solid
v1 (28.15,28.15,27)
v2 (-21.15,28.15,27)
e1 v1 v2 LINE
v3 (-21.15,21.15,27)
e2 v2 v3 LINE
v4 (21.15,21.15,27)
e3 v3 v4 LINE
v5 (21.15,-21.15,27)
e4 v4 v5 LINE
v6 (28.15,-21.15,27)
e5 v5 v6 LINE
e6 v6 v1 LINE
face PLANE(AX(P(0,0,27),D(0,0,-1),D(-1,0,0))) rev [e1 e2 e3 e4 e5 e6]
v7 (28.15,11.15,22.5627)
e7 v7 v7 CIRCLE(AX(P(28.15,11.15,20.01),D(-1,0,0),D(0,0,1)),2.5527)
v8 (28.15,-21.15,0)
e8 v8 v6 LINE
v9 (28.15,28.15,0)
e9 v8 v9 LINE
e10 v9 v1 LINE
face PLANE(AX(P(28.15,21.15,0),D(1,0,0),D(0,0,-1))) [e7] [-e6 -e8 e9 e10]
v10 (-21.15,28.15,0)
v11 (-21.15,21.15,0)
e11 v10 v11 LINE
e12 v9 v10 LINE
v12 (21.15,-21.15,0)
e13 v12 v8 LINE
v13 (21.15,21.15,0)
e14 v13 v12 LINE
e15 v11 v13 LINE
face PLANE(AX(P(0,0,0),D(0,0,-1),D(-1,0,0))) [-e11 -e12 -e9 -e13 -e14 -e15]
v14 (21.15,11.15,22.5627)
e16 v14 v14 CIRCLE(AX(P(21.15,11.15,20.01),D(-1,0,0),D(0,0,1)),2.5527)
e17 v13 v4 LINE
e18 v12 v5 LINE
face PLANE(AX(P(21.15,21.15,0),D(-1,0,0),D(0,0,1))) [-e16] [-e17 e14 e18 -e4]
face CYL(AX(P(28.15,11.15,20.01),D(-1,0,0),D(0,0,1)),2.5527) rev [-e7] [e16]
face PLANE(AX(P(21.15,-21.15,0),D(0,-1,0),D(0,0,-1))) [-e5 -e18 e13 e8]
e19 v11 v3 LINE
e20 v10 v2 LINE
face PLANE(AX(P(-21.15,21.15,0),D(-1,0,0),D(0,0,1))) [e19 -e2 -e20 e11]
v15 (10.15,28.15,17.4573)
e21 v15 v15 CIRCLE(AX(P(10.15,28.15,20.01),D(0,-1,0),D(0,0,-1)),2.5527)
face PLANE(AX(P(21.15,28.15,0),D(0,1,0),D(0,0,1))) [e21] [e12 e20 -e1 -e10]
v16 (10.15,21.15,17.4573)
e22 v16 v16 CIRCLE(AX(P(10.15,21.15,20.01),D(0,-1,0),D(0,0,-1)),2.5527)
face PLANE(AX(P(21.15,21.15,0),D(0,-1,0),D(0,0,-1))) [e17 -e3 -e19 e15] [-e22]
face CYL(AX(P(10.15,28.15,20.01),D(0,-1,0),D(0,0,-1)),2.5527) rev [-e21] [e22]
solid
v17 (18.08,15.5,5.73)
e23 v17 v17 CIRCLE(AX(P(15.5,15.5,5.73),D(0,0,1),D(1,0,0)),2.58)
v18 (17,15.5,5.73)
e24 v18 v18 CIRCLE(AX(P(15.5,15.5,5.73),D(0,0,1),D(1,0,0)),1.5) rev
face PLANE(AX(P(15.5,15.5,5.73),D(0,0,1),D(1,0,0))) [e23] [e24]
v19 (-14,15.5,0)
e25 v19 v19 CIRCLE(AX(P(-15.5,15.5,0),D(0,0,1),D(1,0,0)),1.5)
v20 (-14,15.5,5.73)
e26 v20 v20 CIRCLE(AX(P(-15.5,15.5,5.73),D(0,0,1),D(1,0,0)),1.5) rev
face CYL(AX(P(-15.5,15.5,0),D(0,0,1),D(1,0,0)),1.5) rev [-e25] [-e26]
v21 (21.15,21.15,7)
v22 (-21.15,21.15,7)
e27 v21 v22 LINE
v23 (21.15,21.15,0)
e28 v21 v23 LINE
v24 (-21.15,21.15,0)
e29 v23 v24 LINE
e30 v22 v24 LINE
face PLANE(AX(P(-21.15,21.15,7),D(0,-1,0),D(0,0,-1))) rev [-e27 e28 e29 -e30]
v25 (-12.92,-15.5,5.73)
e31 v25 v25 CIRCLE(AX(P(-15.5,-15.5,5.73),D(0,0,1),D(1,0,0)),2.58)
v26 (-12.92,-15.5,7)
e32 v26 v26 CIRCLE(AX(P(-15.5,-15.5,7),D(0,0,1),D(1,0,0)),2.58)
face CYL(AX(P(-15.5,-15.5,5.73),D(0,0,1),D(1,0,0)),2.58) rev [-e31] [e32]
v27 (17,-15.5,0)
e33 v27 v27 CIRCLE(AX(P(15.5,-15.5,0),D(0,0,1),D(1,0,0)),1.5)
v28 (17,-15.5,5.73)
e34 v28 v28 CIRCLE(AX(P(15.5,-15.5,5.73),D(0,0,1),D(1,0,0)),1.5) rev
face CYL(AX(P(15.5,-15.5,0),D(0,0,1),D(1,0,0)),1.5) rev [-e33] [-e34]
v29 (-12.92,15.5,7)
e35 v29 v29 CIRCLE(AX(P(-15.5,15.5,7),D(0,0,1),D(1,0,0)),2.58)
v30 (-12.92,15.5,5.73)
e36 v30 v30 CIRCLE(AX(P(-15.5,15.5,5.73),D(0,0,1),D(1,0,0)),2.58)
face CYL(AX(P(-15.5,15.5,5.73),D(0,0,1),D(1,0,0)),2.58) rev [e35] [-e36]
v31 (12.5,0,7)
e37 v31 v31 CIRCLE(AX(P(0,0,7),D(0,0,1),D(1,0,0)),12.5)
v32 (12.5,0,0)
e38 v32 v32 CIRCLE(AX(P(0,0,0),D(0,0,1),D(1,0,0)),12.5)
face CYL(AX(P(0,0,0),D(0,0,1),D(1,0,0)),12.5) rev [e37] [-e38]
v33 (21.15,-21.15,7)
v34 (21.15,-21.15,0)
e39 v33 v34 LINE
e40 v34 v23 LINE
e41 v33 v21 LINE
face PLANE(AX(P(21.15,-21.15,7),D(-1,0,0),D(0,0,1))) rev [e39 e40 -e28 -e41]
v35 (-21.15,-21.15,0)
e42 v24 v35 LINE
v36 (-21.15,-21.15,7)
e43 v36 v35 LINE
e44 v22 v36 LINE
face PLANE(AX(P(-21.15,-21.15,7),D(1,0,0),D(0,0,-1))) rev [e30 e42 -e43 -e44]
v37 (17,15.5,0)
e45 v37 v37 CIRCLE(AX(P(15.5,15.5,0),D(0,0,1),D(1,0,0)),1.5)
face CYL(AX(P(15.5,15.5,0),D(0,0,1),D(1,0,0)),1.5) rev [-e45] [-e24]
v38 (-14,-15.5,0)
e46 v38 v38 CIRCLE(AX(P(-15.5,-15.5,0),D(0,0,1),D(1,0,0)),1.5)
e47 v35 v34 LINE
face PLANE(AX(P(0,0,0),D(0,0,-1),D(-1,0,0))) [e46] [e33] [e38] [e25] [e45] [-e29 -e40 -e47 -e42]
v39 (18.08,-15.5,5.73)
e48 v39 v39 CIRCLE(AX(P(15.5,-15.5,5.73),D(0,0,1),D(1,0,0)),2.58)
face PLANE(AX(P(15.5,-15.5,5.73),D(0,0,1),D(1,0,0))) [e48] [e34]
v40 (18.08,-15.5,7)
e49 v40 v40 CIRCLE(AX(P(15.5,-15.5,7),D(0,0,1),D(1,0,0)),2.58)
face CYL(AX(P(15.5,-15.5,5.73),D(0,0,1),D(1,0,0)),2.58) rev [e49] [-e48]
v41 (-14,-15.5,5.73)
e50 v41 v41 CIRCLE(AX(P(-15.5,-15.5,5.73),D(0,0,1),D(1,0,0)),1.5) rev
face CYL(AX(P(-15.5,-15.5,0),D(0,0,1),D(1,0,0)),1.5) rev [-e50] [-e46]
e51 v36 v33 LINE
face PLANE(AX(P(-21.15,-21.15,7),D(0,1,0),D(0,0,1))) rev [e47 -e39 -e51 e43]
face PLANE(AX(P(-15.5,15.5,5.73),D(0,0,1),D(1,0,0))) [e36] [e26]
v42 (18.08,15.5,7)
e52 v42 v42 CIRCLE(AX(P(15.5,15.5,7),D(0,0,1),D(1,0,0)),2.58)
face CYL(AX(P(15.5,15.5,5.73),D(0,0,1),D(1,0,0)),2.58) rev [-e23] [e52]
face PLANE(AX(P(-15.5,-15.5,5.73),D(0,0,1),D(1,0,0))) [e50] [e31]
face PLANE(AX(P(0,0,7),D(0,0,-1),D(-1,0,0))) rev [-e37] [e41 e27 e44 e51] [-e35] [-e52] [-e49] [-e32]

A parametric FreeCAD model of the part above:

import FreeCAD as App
import Part
import Sketcher
from FreeCAD import Vector
Q = App.Units.Quantity

doc = App.newDocument("Part")
body = doc.addObject("PartDesign::Body", "Body")

# Sketch on XY plane
sketch1 = doc.addObject("Sketcher::SketchObject", "Sketch")
body.addObject(sketch1)
sketch1.AttachmentSupport = (doc.XY_Plane, [""])
sketch1.MapMode = "FlatFace"
sketch1.addGeometry([
    Part.LineSegment(Vector(-21, 21, 0), Vector(-21, -21, 0)),
    Part.LineSegment(Vector(-21, -21, 0), Vector(21, -21, 0)),
    Part.LineSegment(Vector(21, -21, 0), Vector(21, 21, 0)),
    Part.LineSegment(Vector(21, 21, 0), Vector(-21, 21, 0)),
], False)
sketch1.addConstraint([
    Sketcher.Constraint("Coincident", 0, 2, 1, 1),
    Sketcher.Constraint("Coincident", 1, 2, 2, 1),
    Sketcher.Constraint("Coincident", 2, 2, 3, 1),
    Sketcher.Constraint("Coincident", 3, 2, 0, 1),
    Sketcher.Constraint("Vertical", 0),
    Sketcher.Constraint("Horizontal", 1),
    Sketcher.Constraint("Vertical", 2),
    Sketcher.Constraint("Horizontal", 3),
    Sketcher.Constraint("Symmetric", 0, 2, 2, 2, -1, 1),
    Sketcher.Constraint("Equal", 3, 0),
    Sketcher.Constraint("DistanceX", 1, 1, 1, 2, Q("42.3 mm")),
])
pad1 = doc.addObject("PartDesign::Pad", "Pad")
body.addObject(pad1)
pad1.Profile = sketch1
pad1.Length = 7

# Sketch on XY plane
sketch2 = doc.addObject("Sketcher::SketchObject", "Sketch001")
body.addObject(sketch2)
sketch2.AttachmentSupport = (doc.XY_Plane, [""])
sketch2.MapMode = "FlatFace"
sketch2.AttachmentOffset = App.Placement(Vector(0, 0, 7), App.Rotation())
sketch2.addGeometry([
    Part.Circle(Vector(-15.5, 15.5, 0), Vector(0, 0, 1), 1.5),  # 0
    Part.Circle(Vector(0, 0, 0), Vector(0, 0, 1), 12.5),  # 1
    Part.Circle(Vector(15.5, 15.5, 0), Vector(0, 0, 1), 1.5),  # 2
    Part.Circle(Vector(15.5, -15.5, 0), Vector(0, 0, 1), 1.5),  # 3
    Part.Circle(Vector(-15.5, -15.5, 0), Vector(0, 0, 1), 1.5),  # 4
], False)
sketch2.addConstraint([
    Sketcher.Constraint("Coincident", 1, 3, -1, 1),
    Sketcher.Constraint("Equal", 0, 2),
    Sketcher.Constraint("Equal", 2, 3),
    Sketcher.Constraint("Equal", 3, 4),
    Sketcher.Constraint("Symmetric", 0, 3, 3, 3, -1, 1),
    Sketcher.Constraint("Symmetric", 2, 3, 4, 3, -1, 1),
    Sketcher.Constraint("Symmetric", 0, 3, 2, 3, -2),
    Sketcher.Constraint("Diameter", 0, Q("3 mm")),
    Sketcher.Constraint("Diameter", 1, Q("25 mm")),
    Sketcher.Constraint("DistanceX", 0, 3, 2, 3, Q("31 mm")),
    Sketcher.Constraint("DistanceY", 3, 3, 2, 3, Q("31 mm")),
])
pocket1 = doc.addObject("PartDesign::Pocket", "Pocket")
body.addObject(pocket1)
pocket1.Profile = sketch2
pocket1.Length = 7

# Sketch on XY plane
sketch3 = doc.addObject("Sketcher::SketchObject", "Sketch002")
body.addObject(sketch3)
sketch3.AttachmentSupport = (doc.XY_Plane, [""])
sketch3.MapMode = "FlatFace"
sketch3.AttachmentOffset = App.Placement(Vector(0, 0, 7), App.Rotation())
sketch3.addGeometry([
    Part.Circle(Vector(-15.5, 15.5, 0), Vector(0, 0, 1), 2.6),
    Part.Circle(Vector(15.5, 15.5, 0), Vector(0, 0, 1), 2.6),
    Part.Circle(Vector(-15.5, -15.5, 0), Vector(0, 0, 1), 2.6),
    Part.Circle(Vector(15.5, -15.5, 0), Vector(0, 0, 1), 2.6),
], False)
sketch3.addConstraint([
    Sketcher.Constraint("Equal", 0, 1),
    Sketcher.Constraint("Equal", 1, 2),
    Sketcher.Constraint("Equal", 2, 3),
    Sketcher.Constraint("Symmetric", 1, 3, 2, 3, -1, 1),
    Sketcher.Constraint("Symmetric", 0, 3, 3, 3, -1, 1),
    Sketcher.Constraint("Symmetric", 0, 3, 1, 3, -2),
    Sketcher.Constraint("Diameter", 0, Q("5.16 mm")),
    Sketcher.Constraint("DistanceX", 0, 3, 1, 3, Q("31 mm")),
    Sketcher.Constraint("DistanceY", 2, 3, 0, 3, Q("31 mm")),
])
pocket2 = doc.addObject("PartDesign::Pocket", "Pocket001")
body.addObject(pocket2)
pocket2.Profile = sketch3
pocket2.Length = 1.27
body2 = doc.addObject("PartDesign::Body", "Body001")

# Sketch on XY plane
sketch4 = doc.addObject("Sketcher::SketchObject", "Sketch003")
body2.addObject(sketch4)
sketch4.AttachmentSupport = (doc.getObject("XY_Plane001"), [""])
sketch4.MapMode = "FlatFace"
sketch4.AttachmentOffset = App.Placement(Vector(0, 0, 7), App.Rotation())
sketch4.addGeometry([
    Part.LineSegment(Vector(21, -21, 0), Vector(28, -21, 0)),
    Part.LineSegment(Vector(28, -21, 0), Vector(28, 28, 0)),
    Part.LineSegment(Vector(28, 28, 0), Vector(21, 28, 0)),
    Part.LineSegment(Vector(21, 28, 0), Vector(21, -21, 0)),
], False)
sketch4.addConstraint([
    Sketcher.Constraint("Coincident", 0, 2, 1, 1),
    Sketcher.Constraint("Coincident", 1, 2, 2, 1),
    Sketcher.Constraint("Coincident", 2, 2, 3, 1),
    Sketcher.Constraint("Coincident", 3, 2, 0, 1),
    Sketcher.Constraint("Horizontal", 0),
    Sketcher.Constraint("Vertical", 1),
    Sketcher.Constraint("Horizontal", 2),
    Sketcher.Constraint("Vertical", 3),
    Sketcher.Constraint("DistanceX", 0, 1, 0, 2, Q("7 mm")),
    Sketcher.Constraint("DistanceY", 1, 1, 1, 2, Q("49.3 mm")),
    Sketcher.Constraint("DistanceX", -1, 1, 0, 2, Q("28.15 mm")),
    Sketcher.Constraint("DistanceY", 0, 2, -1, 1, Q("21.15 mm")),
])
pad2 = doc.addObject("PartDesign::Pad", "Pad001")
body2.addObject(pad2)
pad2.Profile = sketch4
pad2.Type = "TwoLengths"
pad2.Length = 20
pad2.Length2 = 7

# Sketch on XY plane
sketch5 = doc.addObject("Sketcher::SketchObject", "Sketch004")
body2.addObject(sketch5)
sketch5.AttachmentSupport = (doc.getObject("XY_Plane001"), [""])
sketch5.MapMode = "FlatFace"
sketch5.AttachmentOffset = App.Placement(Vector(0, 0, 7), App.Rotation())
sketch5.addGeometry([
    Part.LineSegment(Vector(-21, 28, 0), Vector(-21, 21, 0)),
    Part.LineSegment(Vector(-21, 21, 0), Vector(21, 21, 0)),
    Part.LineSegment(Vector(21, 21, 0), Vector(21, 28, 0)),
    Part.LineSegment(Vector(21, 28, 0), Vector(-21, 28, 0)),
], False)
sketch5.addConstraint([
    Sketcher.Constraint("Coincident", 0, 2, 1, 1),
    Sketcher.Constraint("Coincident", 1, 2, 2, 1),
    Sketcher.Constraint("Coincident", 2, 2, 3, 1),
    Sketcher.Constraint("Coincident", 3, 2, 0, 1),
    Sketcher.Constraint("Vertical", 0),
    Sketcher.Constraint("Horizontal", 1),
    Sketcher.Constraint("Vertical", 2),
    Sketcher.Constraint("Horizontal", 3),
    Sketcher.Constraint("DistanceY", 0, 2, 0, 1, Q("7 mm")),
    Sketcher.Constraint("DistanceX", 1, 1, 1, 2, Q("42.3 mm")),
    Sketcher.Constraint("DistanceX", 0, 2, -1, 1, Q("21.15 mm")),
    Sketcher.Constraint("DistanceY", -1, 1, 0, 2, Q("21.15 mm")),
])
pad3 = doc.addObject("PartDesign::Pad", "Pad002")
body2.addObject(pad3)
pad3.Profile = sketch5
pad3.Type = "TwoLengths"
pad3.Length = 20
pad3.Length2 = 7

# Sketch on XZ plane
sketch6 = doc.addObject("Sketcher::SketchObject", "Sketch005")
body2.addObject(sketch6)
sketch6.AttachmentSupport = (doc.getObject("XZ_Plane001"), [""])
sketch6.MapMode = "FlatFace"
sketch6.AttachmentOffset = App.Placement(Vector(0, 0, -21.15), App.Rotation())
sketch6.addGeometry(Part.Circle(Vector(10.2, 20, 0), Vector(0, 0, 1), 2.6), False)
sketch6.addConstraint([
    Sketcher.Constraint("Diameter", 0, Q("5.1054 mm")),
    Sketcher.Constraint("DistanceX", -1, 1, 0, 3, Q("10.15 mm")),
    Sketcher.Constraint("DistanceY", -1, 1, 0, 3, Q("20.01 mm")),
])
pocket3 = doc.addObject("PartDesign::Pocket", "Pocket002")
body2.addObject(pocket3)
pocket3.Profile = sketch6
pocket3.Type = "ThroughAll"

# Sketch on YZ plane
sketch7 = doc.addObject("Sketcher::SketchObject", "Sketch006")
body2.addObject(sketch7)
sketch7.AttachmentSupport = (doc.getObject("YZ_Plane001"), [""])
sketch7.MapMode = "FlatFace"
sketch7.AttachmentOffset = App.Placement(Vector(0, 0, 21.15), App.Rotation())
sketch7.addGeometry(Part.Circle(Vector(11.2, 20, 0), Vector(0, 0, 1), 2.6), False)
sketch7.addConstraint([
    Sketcher.Constraint("Diameter", 0, Q("5.1054 mm")),
    Sketcher.Constraint("DistanceX", -1, 1, 0, 3, Q("11.15 mm")),
    Sketcher.Constraint("DistanceY", -1, 1, 0, 3, Q("20.01 mm")),
])
pocket4 = doc.addObject("PartDesign::Pocket", "Pocket003")
body2.addObject(pocket4)
pocket4.Profile = sketch7
pocket4.Type = "ThroughAll"
pocket4.Reversed = True

doc.recompute()
